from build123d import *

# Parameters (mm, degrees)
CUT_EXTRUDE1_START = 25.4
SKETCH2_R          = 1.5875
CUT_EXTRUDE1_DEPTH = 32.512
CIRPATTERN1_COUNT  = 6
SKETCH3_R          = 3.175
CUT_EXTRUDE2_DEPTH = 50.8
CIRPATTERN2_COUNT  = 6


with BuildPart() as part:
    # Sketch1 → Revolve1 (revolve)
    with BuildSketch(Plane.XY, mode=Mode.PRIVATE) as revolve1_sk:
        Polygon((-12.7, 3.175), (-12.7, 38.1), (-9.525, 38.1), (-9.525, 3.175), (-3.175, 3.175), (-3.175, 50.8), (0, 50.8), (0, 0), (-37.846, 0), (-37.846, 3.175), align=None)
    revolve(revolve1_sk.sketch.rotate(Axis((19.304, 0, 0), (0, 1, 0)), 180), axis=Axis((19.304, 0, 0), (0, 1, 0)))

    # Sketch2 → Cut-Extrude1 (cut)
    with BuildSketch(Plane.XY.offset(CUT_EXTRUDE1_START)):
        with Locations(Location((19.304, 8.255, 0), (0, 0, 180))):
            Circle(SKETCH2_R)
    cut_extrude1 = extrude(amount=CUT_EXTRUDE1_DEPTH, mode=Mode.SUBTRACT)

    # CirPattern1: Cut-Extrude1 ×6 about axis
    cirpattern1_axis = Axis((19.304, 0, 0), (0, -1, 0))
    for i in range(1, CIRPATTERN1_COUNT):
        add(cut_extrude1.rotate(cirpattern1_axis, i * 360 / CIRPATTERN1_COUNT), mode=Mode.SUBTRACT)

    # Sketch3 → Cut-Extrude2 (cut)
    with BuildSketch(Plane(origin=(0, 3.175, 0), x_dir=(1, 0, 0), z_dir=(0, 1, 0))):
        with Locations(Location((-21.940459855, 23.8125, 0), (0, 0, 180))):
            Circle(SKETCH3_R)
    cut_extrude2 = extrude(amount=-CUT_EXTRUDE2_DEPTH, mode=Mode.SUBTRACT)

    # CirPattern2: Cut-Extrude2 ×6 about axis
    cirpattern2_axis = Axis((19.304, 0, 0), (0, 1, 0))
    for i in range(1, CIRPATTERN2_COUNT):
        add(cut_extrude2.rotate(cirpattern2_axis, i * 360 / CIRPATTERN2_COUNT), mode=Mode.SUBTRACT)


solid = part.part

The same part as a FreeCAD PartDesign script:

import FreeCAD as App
import Part
import Sketcher
from FreeCAD import Vector
Q = App.Units.Quantity

doc = App.newDocument("Part")
body = doc.addObject("PartDesign::Body", "Body")

sketch1 = body.newObject("Sketcher::SketchObject", "Sketch")
sketch1.AttachmentSupport = (doc.getObject("XY_Plane"), [""])
sketch1.MapMode = "FlatFace"
sketch1.addGeometry([
    Part.LineSegment(Vector(-12.7, 38.1, 0), Vector(-12.7, 3.2, 0)),
    Part.LineSegment(Vector(-12.7, 3.2, 0), Vector(-37.8, 3.2, 0)),
    Part.LineSegment(Vector(-37.8, 3.2, 0), Vector(-37.8, 0, 0)),
    Part.LineSegment(Vector(-37.8, 0, 0), Vector(0, 0, 0)),
    Part.LineSegment(Vector(0, 0, 0), Vector(0, 50.8, 0)),
    Part.LineSegment(Vector(0, 50.8, 0), Vector(-3.2, 50.8, 0)),
    Part.LineSegment(Vector(-3.2, 50.8, 0), Vector(-3.2, 3.2, 0)),
    Part.LineSegment(Vector(-3.2, 3.2, 0), Vector(-9.5, 3.2, 0)),
    Part.LineSegment(Vector(-9.5, 3.2, 0), Vector(-9.5, 38.1, 0)),
    Part.LineSegment(Vector(-9.5, 38.1, 0), Vector(-12.7, 38.1, 0)),
], False)
sketch1.addGeometry(Part.LineSegment(Vector(19.3, 0, 0), Vector(19.3, 50.8, 0)), True)
sketch1.addConstraint([
    Sketcher.Constraint("Coincident", 0, 2, 1, 1),
    Sketcher.Constraint("Coincident", 1, 2, 2, 1),
    Sketcher.Constraint("Coincident", 2, 2, 3, 1),
    Sketcher.Constraint("Coincident", 3, 2, 4, 1),
    Sketcher.Constraint("Coincident", 4, 2, 5, 1),
    Sketcher.Constraint("Coincident", 5, 2, 6, 1),
    Sketcher.Constraint("Coincident", 6, 2, 7, 1),
    Sketcher.Constraint("Coincident", 7, 2, 8, 1),
    Sketcher.Constraint("Coincident", 8, 2, 9, 1),
    Sketcher.Constraint("Coincident", 9, 2, 0, 1),
    Sketcher.Constraint("Vertical", 0),
    Sketcher.Constraint("Horizontal", 1),
    Sketcher.Constraint("Vertical", 2),
    Sketcher.Constraint("Horizontal", 3),
    Sketcher.Constraint("Vertical", 4),
    Sketcher.Constraint("Horizontal", 5),
    Sketcher.Constraint("Vertical", 6),
    Sketcher.Constraint("Horizontal", 7),
    Sketcher.Constraint("Vertical", 8),
    Sketcher.Constraint("Horizontal", 9),
    Sketcher.Constraint("Vertical", 10),
    Sketcher.Constraint("Coincident", 3, 2, -1, 1),
    Sketcher.Constraint("PointOnObject", 10, 1, -1),
    Sketcher.Constraint("Horizontal", 1, 2, 6, 2),
    Sketcher.Constraint("Horizontal", 5, 2, 10, 2),
    Sketcher.Constraint("Equal", 5, 9),
    Sketcher.Constraint("Equal", 9, 2),
    Sketcher.Constraint("DistanceY", 4, 1, 4, 2, Q("2 in")),
    Sketcher.Constraint("DistanceX", 1, 2, 1, 1, Q("0.99 in")),
    Sketcher.Constraint("DistanceX", 3, 1, 3, 2, Q("1.49 in")),
    Sketcher.Constraint("DistanceX", 7, 2, 7, 1, Q("0.25 in")),
    Sketcher.Constraint("DistanceY", -1, 1, 8, 2, Q("1.5 in")),
    Sketcher.Constraint("DistanceX", -1, 1, 10, 1, Q("0.76 in")),
])
revolution = body.newObject("PartDesign::Revolution", "Revolution")
revolution.Profile = sketch1
revolution.ReferenceAxis = (sketch1, ["Axis0"])
revolution.Angle = 360

sketch2 = body.newObject("Sketcher::SketchObject", "Sketch001")
sketch2.AttachmentSupport = (doc.getObject("XY_Plane"), [""])
sketch2.MapMode = "FlatFace"
sketch2.AttachmentOffset = App.Placement(Vector(0, 0, 1 * 25.4), App.Rotation())
sketch2.addGeometry(Part.Circle(Vector(19.3, 8.3, 0), Vector(0, 0, 1), 1.6), False)
sketch2.addConstraint([
    Sketcher.Constraint("Diameter", 0, Q("0.125 in")),
    Sketcher.Constraint("DistanceX", -1, 1, 0, 3, Q("0.76 in")),
    Sketcher.Constraint("DistanceY", -1, 1, 0, 3, Q("0.325 in")),
])
pocket1 = body.newObject("PartDesign::Pocket", "Pocket")
pocket1.Profile = sketch2
pocket1.Length = Q("1.28 in")
pocket1.Reversed = True
doc.recompute()

datumline = body.newObject("PartDesign::Line", "DatumLine")
datumline.Placement = App.Placement(Vector(19.304, 0, 0), App.Rotation(Vector(0, 0, 1), Vector(0, -1, 0)))
polarpattern = body.newObject("PartDesign::PolarPattern", "PolarPattern")
polarpattern.Originals = [pocket1]
polarpattern.Axis = (datumline, [""])
polarpattern.Angle = 360
polarpattern.Occurrences = 6
body.Tip = polarpattern

sketch3 = body.newObject("Sketcher::SketchObject", "Sketch002")
sketch3.AttachmentSupport = (doc.getObject("XZ_Plane"), [""])
sketch3.MapMode = "FlatFace"
sketch3.AttachmentOffset = App.Placement(Vector(0, 0, -0.125 * 25.4), App.Rotation())
sketch3.addGeometry(Part.Circle(Vector(-21.9, -23.8, 0), Vector(0, 0, 1), 3.2), False)
sketch3.addConstraint([
    Sketcher.Constraint("Diameter", 0, Q("0.25 in")),
    Sketcher.Constraint("DistanceY", 0, 3, -1, 1, Q("0.9375 in")),
    Sketcher.Constraint("DistanceX", 0, 3, -1, 1, 21.94046),
])
pocket2 = body.newObject("PartDesign::Pocket", "Pocket001")
pocket2.Profile = sketch3
pocket2.Length = Q("2 in")
pocket2.Reversed = True
doc.recompute()

datumline2 = body.newObject("PartDesign::Line", "DatumLine001")
datumline2.Placement = App.Placement(Vector(19.304, 0, 0), App.Rotation(Vector(0, 0, 1), Vector(0, 1, 0)))
polarpattern2 = body.newObject("PartDesign::PolarPattern", "PolarPattern001")
polarpattern2.Originals = [pocket2]
polarpattern2.Axis = (datumline2, [""])
polarpattern2.Angle = 360
polarpattern2.Occurrences = 6
body.Tip = polarpattern2

doc.recompute()
